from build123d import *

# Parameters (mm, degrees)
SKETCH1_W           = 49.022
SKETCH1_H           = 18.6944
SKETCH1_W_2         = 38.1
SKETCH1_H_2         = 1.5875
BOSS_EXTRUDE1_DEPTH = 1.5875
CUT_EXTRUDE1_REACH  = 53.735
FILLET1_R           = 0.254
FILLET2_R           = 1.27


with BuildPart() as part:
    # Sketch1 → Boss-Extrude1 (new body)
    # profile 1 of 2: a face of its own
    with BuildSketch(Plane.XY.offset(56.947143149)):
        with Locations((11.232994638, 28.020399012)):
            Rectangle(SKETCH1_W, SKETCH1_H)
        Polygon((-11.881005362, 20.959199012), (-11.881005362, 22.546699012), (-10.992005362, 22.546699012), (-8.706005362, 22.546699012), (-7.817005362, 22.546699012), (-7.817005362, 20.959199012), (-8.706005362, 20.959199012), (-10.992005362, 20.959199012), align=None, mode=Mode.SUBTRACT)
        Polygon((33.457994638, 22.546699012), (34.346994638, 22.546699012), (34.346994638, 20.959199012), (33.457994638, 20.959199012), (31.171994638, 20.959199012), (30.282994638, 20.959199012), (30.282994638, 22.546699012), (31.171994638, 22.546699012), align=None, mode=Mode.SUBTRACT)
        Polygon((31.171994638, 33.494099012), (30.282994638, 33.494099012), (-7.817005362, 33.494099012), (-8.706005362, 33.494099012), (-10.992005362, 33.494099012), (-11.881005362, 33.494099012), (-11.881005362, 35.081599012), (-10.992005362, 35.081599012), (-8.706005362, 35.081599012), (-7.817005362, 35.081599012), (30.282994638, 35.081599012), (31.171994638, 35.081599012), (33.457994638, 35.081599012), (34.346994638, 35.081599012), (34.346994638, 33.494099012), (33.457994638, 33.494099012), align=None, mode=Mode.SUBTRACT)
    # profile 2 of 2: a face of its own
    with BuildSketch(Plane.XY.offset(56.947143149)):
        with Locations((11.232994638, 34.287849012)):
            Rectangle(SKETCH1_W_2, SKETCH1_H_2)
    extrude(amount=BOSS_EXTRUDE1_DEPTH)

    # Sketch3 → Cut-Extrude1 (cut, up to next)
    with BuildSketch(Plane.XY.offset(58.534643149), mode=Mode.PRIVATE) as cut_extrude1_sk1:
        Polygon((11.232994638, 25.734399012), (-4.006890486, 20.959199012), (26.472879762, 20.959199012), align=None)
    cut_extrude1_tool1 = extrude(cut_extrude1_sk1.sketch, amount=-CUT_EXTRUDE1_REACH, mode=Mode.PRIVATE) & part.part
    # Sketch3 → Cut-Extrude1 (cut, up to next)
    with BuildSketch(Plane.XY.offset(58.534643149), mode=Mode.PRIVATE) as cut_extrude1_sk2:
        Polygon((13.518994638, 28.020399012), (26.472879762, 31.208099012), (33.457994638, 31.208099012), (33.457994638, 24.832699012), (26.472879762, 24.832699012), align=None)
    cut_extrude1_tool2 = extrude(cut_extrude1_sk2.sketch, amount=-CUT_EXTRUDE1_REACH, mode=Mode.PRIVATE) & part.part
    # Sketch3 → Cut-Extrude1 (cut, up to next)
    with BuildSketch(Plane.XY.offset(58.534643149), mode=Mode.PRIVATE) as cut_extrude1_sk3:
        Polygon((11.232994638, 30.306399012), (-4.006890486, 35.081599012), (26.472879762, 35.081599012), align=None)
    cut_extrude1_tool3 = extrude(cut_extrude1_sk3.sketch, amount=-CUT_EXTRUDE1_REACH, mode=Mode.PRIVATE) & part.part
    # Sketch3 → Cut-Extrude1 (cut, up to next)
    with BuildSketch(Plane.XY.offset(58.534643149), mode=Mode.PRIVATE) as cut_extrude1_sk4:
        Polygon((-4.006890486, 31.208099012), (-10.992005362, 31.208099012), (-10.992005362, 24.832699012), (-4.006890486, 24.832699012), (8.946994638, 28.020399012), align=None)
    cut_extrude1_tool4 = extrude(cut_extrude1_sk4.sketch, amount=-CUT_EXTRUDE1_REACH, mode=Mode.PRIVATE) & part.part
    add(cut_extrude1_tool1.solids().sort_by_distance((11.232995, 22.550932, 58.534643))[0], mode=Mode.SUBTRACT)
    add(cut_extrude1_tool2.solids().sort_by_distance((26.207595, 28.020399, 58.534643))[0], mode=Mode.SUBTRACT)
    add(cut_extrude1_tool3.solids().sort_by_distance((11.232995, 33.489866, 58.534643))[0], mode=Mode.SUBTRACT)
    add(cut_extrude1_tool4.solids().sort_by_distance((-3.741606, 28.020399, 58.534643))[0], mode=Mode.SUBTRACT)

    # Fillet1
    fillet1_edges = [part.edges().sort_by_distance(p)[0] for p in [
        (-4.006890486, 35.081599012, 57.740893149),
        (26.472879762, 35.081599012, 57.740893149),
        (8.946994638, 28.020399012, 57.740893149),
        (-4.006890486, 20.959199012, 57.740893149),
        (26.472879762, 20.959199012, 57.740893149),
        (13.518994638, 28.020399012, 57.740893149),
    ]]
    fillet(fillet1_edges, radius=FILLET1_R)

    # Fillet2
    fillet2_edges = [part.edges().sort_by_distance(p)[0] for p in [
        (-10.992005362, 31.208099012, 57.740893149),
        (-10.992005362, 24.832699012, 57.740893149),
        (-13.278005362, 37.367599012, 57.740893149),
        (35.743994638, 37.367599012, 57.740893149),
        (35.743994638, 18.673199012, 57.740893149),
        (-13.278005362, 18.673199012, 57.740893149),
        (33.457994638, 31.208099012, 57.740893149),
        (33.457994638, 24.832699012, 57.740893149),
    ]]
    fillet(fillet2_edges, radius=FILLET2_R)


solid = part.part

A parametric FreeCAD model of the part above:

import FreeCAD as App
import Part
import Sketcher

V = App.Vector
Q = App.Units.Quantity


def edges_at(feature, points):
    """Names of the edges that pass closest to the given points."""
    edges = feature.Shape.Edges
    near = lambda p: min(range(len(edges)), key=lambda i: edges[i].distToShape(Part.Vertex(*p))[0])
    return sorted({f"Edge{near(p) + 1}" for p in points})

doc = App.newDocument("Part")
body = doc.addObject("PartDesign::Body", "Body")

sketch1 = body.newObject("Sketcher::SketchObject", "Sketch")
sketch1.AttachmentSupport = (doc.getObject("XY_Plane"), [""])
sketch1.MapMode = "FlatFace"
sketch1.AttachmentOffset = App.Placement(V(0, 0, 56.947143), App.Rotation())
sketch1.addGeometry([
    Part.LineSegment(V(-13.278005, 37.367599, 0), V(-13.278005, 18.673199, 0)),
    Part.LineSegment(V(-13.278005, 18.673199, 0), V(35.743995, 18.673199, 0)),
    Part.LineSegment(V(35.743995, 18.673199, 0), V(35.743995, 37.367599, 0)),
    Part.LineSegment(V(35.743995, 37.367599, 0), V(-13.278005, 37.367599, 0)),
    Part.LineSegment(V(-7.817005, 20.959199, 0), V(-11.881005, 20.959199, 0)),
    Part.LineSegment(V(-11.881005, 20.959199, 0), V(-11.881005, 22.546699, 0)),
    Part.LineSegment(V(-11.881005, 22.546699, 0), V(-7.817005, 22.546699, 0)),
    Part.LineSegment(V(-7.817005, 22.546699, 0), V(-7.817005, 20.959199, 0)),
    Part.LineSegment(V(30.282995, 22.546699, 0), V(34.346995, 22.546699, 0)),
    Part.LineSegment(V(34.346995, 22.546699, 0), V(34.346995, 20.959199, 0)),
    Part.LineSegment(V(34.346995, 20.959199, 0), V(30.282995, 20.959199, 0)),
    Part.LineSegment(V(30.282995, 20.959199, 0), V(30.282995, 22.546699, 0)),
    Part.LineSegment(V(34.346995, 33.494099, 0), V(30.282995, 33.494099, 0)),
    Part.LineSegment(V(30.282995, 33.494099, 0), V(30.282995, 35.081599, 0)),
    Part.LineSegment(V(30.282995, 35.081599, 0), V(34.346995, 35.081599, 0)),
    Part.LineSegment(V(34.346995, 35.081599, 0), V(34.346995, 33.494099, 0)),
    Part.LineSegment(V(-7.817005, 33.494099, 0), V(-11.881005, 33.494099, 0)),
    Part.LineSegment(V(-11.881005, 33.494099, 0), V(-11.881005, 35.081599, 0)),
    Part.LineSegment(V(-11.881005, 35.081599, 0), V(-7.817005, 35.081599, 0)),
    Part.LineSegment(V(-7.817005, 35.081599, 0), V(-7.817005, 33.494099, 0)),
], False)
sketch1.addConstraint([
    Sketcher.Constraint("Coincident", 0, 2, 1, 1),
    Sketcher.Constraint("Coincident", 1, 2, 2, 1),
    Sketcher.Constraint("Coincident", 2, 2, 3, 1),
    Sketcher.Constraint("Coincident", 3, 2, 0, 1),
    Sketcher.Constraint("Coincident", 4, 2, 5, 1),
    Sketcher.Constraint("Coincident", 5, 2, 6, 1),
    Sketcher.Constraint("Coincident", 6, 2, 7, 1),
    Sketcher.Constraint("Coincident", 7, 2, 4, 1),
    Sketcher.Constraint("Coincident", 8, 2, 9, 1),
    Sketcher.Constraint("Coincident", 9, 2, 10, 1),
    Sketcher.Constraint("Coincident", 10, 2, 11, 1),
    Sketcher.Constraint("Coincident", 11, 2, 8, 1),
    Sketcher.Constraint("Coincident", 12, 2, 13, 1),
    Sketcher.Constraint("Coincident", 13, 2, 14, 1),
    Sketcher.Constraint("Coincident", 14, 2, 15, 1),
    Sketcher.Constraint("Coincident", 15, 2, 12, 1),
    Sketcher.Constraint("Coincident", 16, 2, 17, 1),
    Sketcher.Constraint("Coincident", 17, 2, 18, 1),
    Sketcher.Constraint("Coincident", 18, 2, 19, 1),
    Sketcher.Constraint("Coincident", 19, 2, 16, 1),
    Sketcher.Constraint("Vertical", 0),
    Sketcher.Constraint("Horizontal", 1),
    Sketcher.Constraint("Vertical", 2),
    Sketcher.Constraint("Horizontal", 3),
    Sketcher.Constraint("Horizontal", 4),
    Sketcher.Constraint("Vertical", 5),
    Sketcher.Constraint("Horizontal", 6),
    Sketcher.Constraint("Vertical", 7),
    Sketcher.Constraint("Horizontal", 8),
    Sketcher.Constraint("Vertical", 9),
    Sketcher.Constraint("Horizontal", 10),
    Sketcher.Constraint("Vertical", 11),
    Sketcher.Constraint("Horizontal", 12),
    Sketcher.Constraint("Vertical", 13),
    Sketcher.Constraint("Horizontal", 14),
    Sketcher.Constraint("Vertical", 15),
    Sketcher.Constraint("Horizontal", 16),
    Sketcher.Constraint("Vertical", 17),
    Sketcher.Constraint("Horizontal", 18),
    Sketcher.Constraint("Vertical", 19),
    Sketcher.Constraint("Horizontal", 6, 2, 8, 2),
    Sketcher.Constraint("Horizontal", 7, 2, 9, 2),
    Sketcher.Constraint("Horizontal", 15, 2, 16, 2),
    Sketcher.Constraint("Horizontal", 14, 2, 17, 2),
    Sketcher.Constraint("Vertical", 11, 2, 12, 2),
    Sketcher.Constraint("Vertical", 9, 2, 14, 2),
    Sketcher.Constraint("Vertical", 5, 2, 16, 2),
    Sketcher.Constraint("Vertical", 7, 2, 18, 2),
    Sketcher.Constraint("Equal", 6, 8),
    Sketcher.Constraint("Equal", 11, 13),
    Sketcher.Constraint("DistanceX", 1, 1, 1, 2, Q("1.93 in")),
    Sketcher.Constraint("DistanceX", 4, 2, 4, 1, Q("0.16 in")),
    Sketcher.Constraint("DistanceX", 7, 2, 10, 2, Q("1.5 in")),
    Sketcher.Constraint("DistanceY", 0, 2, 0, 1, Q("0.736 in")),
    Sketcher.Constraint("DistanceY", 5, 1, 5, 2, Q("0.0625 in")),
    Sketcher.Constraint("DistanceY", 0, 2, 4, 2, Q("0.09 in")),
    Sketcher.Constraint("DistanceY", 13, 2, 2, 2, Q("0.09 in")),
    Sketcher.Constraint("DistanceX", 0, 2, 4, 2, Q("0.055 in")),
    Sketcher.Constraint("DistanceY", -1, 1, 0, 2, Q("18.673199 mm")),
    Sketcher.Constraint("DistanceX", 0, 2, -1, 1, Q("13.278005 mm")),
])
pad1 = body.newObject("PartDesign::Pad", "Pad")
pad1.Profile = sketch1
pad1.Length = Q("0.0625 in")

sketch2 = body.newObject("Sketcher::SketchObject", "Sketch001")
sketch2.AttachmentSupport = (doc.getObject("XY_Plane"), [""])
sketch2.MapMode = "FlatFace"
sketch2.AttachmentOffset = App.Placement(V(0, 0, 58.534643), App.Rotation())
sketch2.addGeometry([
    Part.LineSegment(V(11.232995, 25.734399, 0), V(-4.00689, 20.959199, 0)),
    Part.LineSegment(V(-4.00689, 20.959199, 0), V(26.47288, 20.959199, 0)),
    Part.LineSegment(V(26.47288, 20.959199, 0), V(11.232995, 25.734399, 0)),
], False)
sketch2.addConstraint([
    Sketcher.Constraint("Coincident", 0, 2, 1, 1),
    Sketcher.Constraint("Coincident", 1, 2, 2, 1),
    Sketcher.Constraint("Coincident", 2, 2, 0, 1),
    Sketcher.Constraint("Horizontal", 1),
    Sketcher.Constraint("Equal", 0, 2),
    Sketcher.Constraint("DistanceY", 0, 2, 2, 2, Q("0.188 in")),
    Sketcher.Constraint("DistanceX", 1, 1, 1, 2, Q("30.47977 mm")),
    Sketcher.Constraint("DistanceY", -1, 1, 0, 2, Q("20.959199 mm")),
    Sketcher.Constraint("DistanceX", 0, 2, -1, 1, Q("4.00689 mm")),
])
pocket1 = body.newObject("PartDesign::Pocket", "Pocket")
pocket1.Profile = sketch2
pocket1.Type = "UpToFirst"

sketch3 = body.newObject("Sketcher::SketchObject", "Sketch002")
sketch3.AttachmentSupport = (doc.getObject("XY_Plane"), [""])
sketch3.MapMode = "FlatFace"
sketch3.AttachmentOffset = App.Placement(V(0, 0, 58.534643), App.Rotation())
sketch3.addGeometry([
    Part.LineSegment(V(26.47288, 31.208099, 0), V(13.518995, 28.020399, 0)),
    Part.LineSegment(V(13.518995, 28.020399, 0), V(26.47288, 24.832699, 0)),
    Part.LineSegment(V(26.47288, 24.832699, 0), V(33.457995, 24.832699, 0)),
    Part.LineSegment(V(33.457995, 24.832699, 0), V(33.457995, 31.208099, 0)),
    Part.LineSegment(V(33.457995, 31.208099, 0), V(26.47288, 31.208099, 0)),
], False)
sketch3.addConstraint([
    Sketcher.Constraint("Coincident", 0, 2, 1, 1),
    Sketcher.Constraint("Coincident", 1, 2, 2, 1),
    Sketcher.Constraint("Coincident", 2, 2, 3, 1),
    Sketcher.Constraint("Coincident", 3, 2, 4, 1),
    Sketcher.Constraint("Coincident", 4, 2, 0, 1),
    Sketcher.Constraint("Horizontal", 2),
    Sketcher.Constraint("Vertical", 3),
    Sketcher.Constraint("Horizontal", 4),
    Sketcher.Constraint("Vertical", 1, 2, 4, 2),
    Sketcher.Constraint("Equal", 0, 1),
    Sketcher.Constraint("DistanceY", 3, 1, 3, 2, Q("0.251 in")),
    Sketcher.Constraint("DistanceX", 0, 2, 2, 2, Q("0.785 in")),
    Sketcher.Constraint("DistanceY", -1, 1, 0, 2, Q("28.020399 mm")),
    Sketcher.Constraint("DistanceX", 2, 1, 2, 2, Q("6.985115 mm")),
    Sketcher.Constraint("DistanceX", -1, 1, 1, 2, Q("26.47288 mm")),
])
pocket2 = body.newObject("PartDesign::Pocket", "Pocket001")
pocket2.Profile = sketch3
pocket2.Type = "UpToFirst"

sketch4 = body.newObject("Sketcher::SketchObject", "Sketch003")
sketch4.AttachmentSupport = (doc.getObject("XY_Plane"), [""])
sketch4.MapMode = "FlatFace"
sketch4.AttachmentOffset = App.Placement(V(0, 0, 58.534643), App.Rotation())
sketch4.addGeometry([
    Part.LineSegment(V(-4.00689, 35.081599, 0), V(11.232995, 30.306399, 0)),
    Part.LineSegment(V(11.232995, 30.306399, 0), V(26.47288, 35.081599, 0)),
    Part.LineSegment(V(26.47288, 35.081599, 0), V(-4.00689, 35.081599, 0)),
], False)
sketch4.addConstraint([
    Sketcher.Constraint("Coincident", 0, 2, 1, 1),
    Sketcher.Constraint("Coincident", 1, 2, 2, 1),
    Sketcher.Constraint("Coincident", 2, 2, 0, 1),
    Sketcher.Constraint("Horizontal", 2),
    Sketcher.Constraint("Equal", 0, 1),
    Sketcher.Constraint("DistanceY", 0, 2, 1, 2, Q("0.188 in")),
    Sketcher.Constraint("DistanceX", 2, 2, 2, 1, Q("30.47977 mm")),
    Sketcher.Constraint("DistanceY", -1, 1, 0, 2, Q("30.306399 mm")),
    Sketcher.Constraint("DistanceX", -1, 1, 1, 2, Q("26.47288 mm")),
])
pocket3 = body.newObject("PartDesign::Pocket", "Pocket002")
pocket3.Profile = sketch4
pocket3.Type = "UpToFirst"

sketch5 = body.newObject("Sketcher::SketchObject", "Sketch004")
sketch5.AttachmentSupport = (doc.getObject("XY_Plane"), [""])
sketch5.MapMode = "FlatFace"
sketch5.AttachmentOffset = App.Placement(V(0, 0, 58.534643), App.Rotation())
sketch5.addGeometry([
    Part.LineSegment(V(-4.00689, 31.208099, 0), V(-10.992005, 31.208099, 0)),
    Part.LineSegment(V(-10.992005, 31.208099, 0), V(-10.992005, 24.832699, 0)),
    Part.LineSegment(V(-10.992005, 24.832699, 0), V(-4.00689, 24.832699, 0)),
    Part.LineSegment(V(-4.00689, 24.832699, 0), V(8.946995, 28.020399, 0)),
    Part.LineSegment(V(8.946995, 28.020399, 0), V(-4.00689, 31.208099, 0)),
], False)
sketch5.addConstraint([
    Sketcher.Constraint("Coincident", 0, 2, 1, 1),
    Sketcher.Constraint("Coincident", 1, 2, 2, 1),
    Sketcher.Constraint("Coincident", 2, 2, 3, 1),
    Sketcher.Constraint("Coincident", 3, 2, 4, 1),
    Sketcher.Constraint("Coincident", 4, 2, 0, 1),
    Sketcher.Constraint("Horizontal", 0),
    Sketcher.Constraint("Vertical", 1),
    Sketcher.Constraint("Horizontal", 2),
    Sketcher.Constraint("Vertical", 2, 2, 4, 2),
    Sketcher.Constraint("Equal", 3, 4),
    Sketcher.Constraint("DistanceY", 1, 2, 1, 1, Q("0.251 in")),
    Sketcher.Constraint("DistanceX", 0, 2, 3, 2, Q("0.785 in")),
    Sketcher.Constraint("DistanceY", -1, 1, 0, 2, Q("31.208099 mm")),
    Sketcher.Constraint("DistanceX", 0, 2, 0, 1, Q("6.985115 mm")),
    Sketcher.Constraint("DistanceX", 2, 2, -1, 1, Q("4.00689 mm")),
])
pocket4 = body.newObject("PartDesign::Pocket", "Pocket003")
pocket4.Profile = sketch5
pocket4.Type = "UpToFirst"
doc.recompute()

fillet = body.newObject("PartDesign::Fillet", "Fillet")
fillet.Base = (pocket4, edges_at(pocket4, [
    (-4.007, 35.082, 57.741),
    (26.473, 35.082, 57.741),
    (8.947, 28.02, 57.741),
    (-4.007, 20.959, 57.741),
    (26.473, 20.959, 57.741),
    (13.519, 28.02, 57.741),
]))
fillet.Radius = Q("0.01 in")
doc.recompute()

fillet2 = body.newObject("PartDesign::Fillet", "Fillet001")
fillet2.Base = (fillet, edges_at(fillet, [
    (-10.992, 31.208, 57.741),
    (-10.992, 24.833, 57.741),
    (-13.278, 37.368, 57.741),
    (35.744, 37.368, 57.741),
    (35.744, 18.673, 57.741),
    (-13.278, 18.673, 57.741),
    (33.458, 31.208, 57.741),
    (33.458, 24.833, 57.741),
]))
fillet2.Radius = Q("0.05 in")

doc.recompute()
